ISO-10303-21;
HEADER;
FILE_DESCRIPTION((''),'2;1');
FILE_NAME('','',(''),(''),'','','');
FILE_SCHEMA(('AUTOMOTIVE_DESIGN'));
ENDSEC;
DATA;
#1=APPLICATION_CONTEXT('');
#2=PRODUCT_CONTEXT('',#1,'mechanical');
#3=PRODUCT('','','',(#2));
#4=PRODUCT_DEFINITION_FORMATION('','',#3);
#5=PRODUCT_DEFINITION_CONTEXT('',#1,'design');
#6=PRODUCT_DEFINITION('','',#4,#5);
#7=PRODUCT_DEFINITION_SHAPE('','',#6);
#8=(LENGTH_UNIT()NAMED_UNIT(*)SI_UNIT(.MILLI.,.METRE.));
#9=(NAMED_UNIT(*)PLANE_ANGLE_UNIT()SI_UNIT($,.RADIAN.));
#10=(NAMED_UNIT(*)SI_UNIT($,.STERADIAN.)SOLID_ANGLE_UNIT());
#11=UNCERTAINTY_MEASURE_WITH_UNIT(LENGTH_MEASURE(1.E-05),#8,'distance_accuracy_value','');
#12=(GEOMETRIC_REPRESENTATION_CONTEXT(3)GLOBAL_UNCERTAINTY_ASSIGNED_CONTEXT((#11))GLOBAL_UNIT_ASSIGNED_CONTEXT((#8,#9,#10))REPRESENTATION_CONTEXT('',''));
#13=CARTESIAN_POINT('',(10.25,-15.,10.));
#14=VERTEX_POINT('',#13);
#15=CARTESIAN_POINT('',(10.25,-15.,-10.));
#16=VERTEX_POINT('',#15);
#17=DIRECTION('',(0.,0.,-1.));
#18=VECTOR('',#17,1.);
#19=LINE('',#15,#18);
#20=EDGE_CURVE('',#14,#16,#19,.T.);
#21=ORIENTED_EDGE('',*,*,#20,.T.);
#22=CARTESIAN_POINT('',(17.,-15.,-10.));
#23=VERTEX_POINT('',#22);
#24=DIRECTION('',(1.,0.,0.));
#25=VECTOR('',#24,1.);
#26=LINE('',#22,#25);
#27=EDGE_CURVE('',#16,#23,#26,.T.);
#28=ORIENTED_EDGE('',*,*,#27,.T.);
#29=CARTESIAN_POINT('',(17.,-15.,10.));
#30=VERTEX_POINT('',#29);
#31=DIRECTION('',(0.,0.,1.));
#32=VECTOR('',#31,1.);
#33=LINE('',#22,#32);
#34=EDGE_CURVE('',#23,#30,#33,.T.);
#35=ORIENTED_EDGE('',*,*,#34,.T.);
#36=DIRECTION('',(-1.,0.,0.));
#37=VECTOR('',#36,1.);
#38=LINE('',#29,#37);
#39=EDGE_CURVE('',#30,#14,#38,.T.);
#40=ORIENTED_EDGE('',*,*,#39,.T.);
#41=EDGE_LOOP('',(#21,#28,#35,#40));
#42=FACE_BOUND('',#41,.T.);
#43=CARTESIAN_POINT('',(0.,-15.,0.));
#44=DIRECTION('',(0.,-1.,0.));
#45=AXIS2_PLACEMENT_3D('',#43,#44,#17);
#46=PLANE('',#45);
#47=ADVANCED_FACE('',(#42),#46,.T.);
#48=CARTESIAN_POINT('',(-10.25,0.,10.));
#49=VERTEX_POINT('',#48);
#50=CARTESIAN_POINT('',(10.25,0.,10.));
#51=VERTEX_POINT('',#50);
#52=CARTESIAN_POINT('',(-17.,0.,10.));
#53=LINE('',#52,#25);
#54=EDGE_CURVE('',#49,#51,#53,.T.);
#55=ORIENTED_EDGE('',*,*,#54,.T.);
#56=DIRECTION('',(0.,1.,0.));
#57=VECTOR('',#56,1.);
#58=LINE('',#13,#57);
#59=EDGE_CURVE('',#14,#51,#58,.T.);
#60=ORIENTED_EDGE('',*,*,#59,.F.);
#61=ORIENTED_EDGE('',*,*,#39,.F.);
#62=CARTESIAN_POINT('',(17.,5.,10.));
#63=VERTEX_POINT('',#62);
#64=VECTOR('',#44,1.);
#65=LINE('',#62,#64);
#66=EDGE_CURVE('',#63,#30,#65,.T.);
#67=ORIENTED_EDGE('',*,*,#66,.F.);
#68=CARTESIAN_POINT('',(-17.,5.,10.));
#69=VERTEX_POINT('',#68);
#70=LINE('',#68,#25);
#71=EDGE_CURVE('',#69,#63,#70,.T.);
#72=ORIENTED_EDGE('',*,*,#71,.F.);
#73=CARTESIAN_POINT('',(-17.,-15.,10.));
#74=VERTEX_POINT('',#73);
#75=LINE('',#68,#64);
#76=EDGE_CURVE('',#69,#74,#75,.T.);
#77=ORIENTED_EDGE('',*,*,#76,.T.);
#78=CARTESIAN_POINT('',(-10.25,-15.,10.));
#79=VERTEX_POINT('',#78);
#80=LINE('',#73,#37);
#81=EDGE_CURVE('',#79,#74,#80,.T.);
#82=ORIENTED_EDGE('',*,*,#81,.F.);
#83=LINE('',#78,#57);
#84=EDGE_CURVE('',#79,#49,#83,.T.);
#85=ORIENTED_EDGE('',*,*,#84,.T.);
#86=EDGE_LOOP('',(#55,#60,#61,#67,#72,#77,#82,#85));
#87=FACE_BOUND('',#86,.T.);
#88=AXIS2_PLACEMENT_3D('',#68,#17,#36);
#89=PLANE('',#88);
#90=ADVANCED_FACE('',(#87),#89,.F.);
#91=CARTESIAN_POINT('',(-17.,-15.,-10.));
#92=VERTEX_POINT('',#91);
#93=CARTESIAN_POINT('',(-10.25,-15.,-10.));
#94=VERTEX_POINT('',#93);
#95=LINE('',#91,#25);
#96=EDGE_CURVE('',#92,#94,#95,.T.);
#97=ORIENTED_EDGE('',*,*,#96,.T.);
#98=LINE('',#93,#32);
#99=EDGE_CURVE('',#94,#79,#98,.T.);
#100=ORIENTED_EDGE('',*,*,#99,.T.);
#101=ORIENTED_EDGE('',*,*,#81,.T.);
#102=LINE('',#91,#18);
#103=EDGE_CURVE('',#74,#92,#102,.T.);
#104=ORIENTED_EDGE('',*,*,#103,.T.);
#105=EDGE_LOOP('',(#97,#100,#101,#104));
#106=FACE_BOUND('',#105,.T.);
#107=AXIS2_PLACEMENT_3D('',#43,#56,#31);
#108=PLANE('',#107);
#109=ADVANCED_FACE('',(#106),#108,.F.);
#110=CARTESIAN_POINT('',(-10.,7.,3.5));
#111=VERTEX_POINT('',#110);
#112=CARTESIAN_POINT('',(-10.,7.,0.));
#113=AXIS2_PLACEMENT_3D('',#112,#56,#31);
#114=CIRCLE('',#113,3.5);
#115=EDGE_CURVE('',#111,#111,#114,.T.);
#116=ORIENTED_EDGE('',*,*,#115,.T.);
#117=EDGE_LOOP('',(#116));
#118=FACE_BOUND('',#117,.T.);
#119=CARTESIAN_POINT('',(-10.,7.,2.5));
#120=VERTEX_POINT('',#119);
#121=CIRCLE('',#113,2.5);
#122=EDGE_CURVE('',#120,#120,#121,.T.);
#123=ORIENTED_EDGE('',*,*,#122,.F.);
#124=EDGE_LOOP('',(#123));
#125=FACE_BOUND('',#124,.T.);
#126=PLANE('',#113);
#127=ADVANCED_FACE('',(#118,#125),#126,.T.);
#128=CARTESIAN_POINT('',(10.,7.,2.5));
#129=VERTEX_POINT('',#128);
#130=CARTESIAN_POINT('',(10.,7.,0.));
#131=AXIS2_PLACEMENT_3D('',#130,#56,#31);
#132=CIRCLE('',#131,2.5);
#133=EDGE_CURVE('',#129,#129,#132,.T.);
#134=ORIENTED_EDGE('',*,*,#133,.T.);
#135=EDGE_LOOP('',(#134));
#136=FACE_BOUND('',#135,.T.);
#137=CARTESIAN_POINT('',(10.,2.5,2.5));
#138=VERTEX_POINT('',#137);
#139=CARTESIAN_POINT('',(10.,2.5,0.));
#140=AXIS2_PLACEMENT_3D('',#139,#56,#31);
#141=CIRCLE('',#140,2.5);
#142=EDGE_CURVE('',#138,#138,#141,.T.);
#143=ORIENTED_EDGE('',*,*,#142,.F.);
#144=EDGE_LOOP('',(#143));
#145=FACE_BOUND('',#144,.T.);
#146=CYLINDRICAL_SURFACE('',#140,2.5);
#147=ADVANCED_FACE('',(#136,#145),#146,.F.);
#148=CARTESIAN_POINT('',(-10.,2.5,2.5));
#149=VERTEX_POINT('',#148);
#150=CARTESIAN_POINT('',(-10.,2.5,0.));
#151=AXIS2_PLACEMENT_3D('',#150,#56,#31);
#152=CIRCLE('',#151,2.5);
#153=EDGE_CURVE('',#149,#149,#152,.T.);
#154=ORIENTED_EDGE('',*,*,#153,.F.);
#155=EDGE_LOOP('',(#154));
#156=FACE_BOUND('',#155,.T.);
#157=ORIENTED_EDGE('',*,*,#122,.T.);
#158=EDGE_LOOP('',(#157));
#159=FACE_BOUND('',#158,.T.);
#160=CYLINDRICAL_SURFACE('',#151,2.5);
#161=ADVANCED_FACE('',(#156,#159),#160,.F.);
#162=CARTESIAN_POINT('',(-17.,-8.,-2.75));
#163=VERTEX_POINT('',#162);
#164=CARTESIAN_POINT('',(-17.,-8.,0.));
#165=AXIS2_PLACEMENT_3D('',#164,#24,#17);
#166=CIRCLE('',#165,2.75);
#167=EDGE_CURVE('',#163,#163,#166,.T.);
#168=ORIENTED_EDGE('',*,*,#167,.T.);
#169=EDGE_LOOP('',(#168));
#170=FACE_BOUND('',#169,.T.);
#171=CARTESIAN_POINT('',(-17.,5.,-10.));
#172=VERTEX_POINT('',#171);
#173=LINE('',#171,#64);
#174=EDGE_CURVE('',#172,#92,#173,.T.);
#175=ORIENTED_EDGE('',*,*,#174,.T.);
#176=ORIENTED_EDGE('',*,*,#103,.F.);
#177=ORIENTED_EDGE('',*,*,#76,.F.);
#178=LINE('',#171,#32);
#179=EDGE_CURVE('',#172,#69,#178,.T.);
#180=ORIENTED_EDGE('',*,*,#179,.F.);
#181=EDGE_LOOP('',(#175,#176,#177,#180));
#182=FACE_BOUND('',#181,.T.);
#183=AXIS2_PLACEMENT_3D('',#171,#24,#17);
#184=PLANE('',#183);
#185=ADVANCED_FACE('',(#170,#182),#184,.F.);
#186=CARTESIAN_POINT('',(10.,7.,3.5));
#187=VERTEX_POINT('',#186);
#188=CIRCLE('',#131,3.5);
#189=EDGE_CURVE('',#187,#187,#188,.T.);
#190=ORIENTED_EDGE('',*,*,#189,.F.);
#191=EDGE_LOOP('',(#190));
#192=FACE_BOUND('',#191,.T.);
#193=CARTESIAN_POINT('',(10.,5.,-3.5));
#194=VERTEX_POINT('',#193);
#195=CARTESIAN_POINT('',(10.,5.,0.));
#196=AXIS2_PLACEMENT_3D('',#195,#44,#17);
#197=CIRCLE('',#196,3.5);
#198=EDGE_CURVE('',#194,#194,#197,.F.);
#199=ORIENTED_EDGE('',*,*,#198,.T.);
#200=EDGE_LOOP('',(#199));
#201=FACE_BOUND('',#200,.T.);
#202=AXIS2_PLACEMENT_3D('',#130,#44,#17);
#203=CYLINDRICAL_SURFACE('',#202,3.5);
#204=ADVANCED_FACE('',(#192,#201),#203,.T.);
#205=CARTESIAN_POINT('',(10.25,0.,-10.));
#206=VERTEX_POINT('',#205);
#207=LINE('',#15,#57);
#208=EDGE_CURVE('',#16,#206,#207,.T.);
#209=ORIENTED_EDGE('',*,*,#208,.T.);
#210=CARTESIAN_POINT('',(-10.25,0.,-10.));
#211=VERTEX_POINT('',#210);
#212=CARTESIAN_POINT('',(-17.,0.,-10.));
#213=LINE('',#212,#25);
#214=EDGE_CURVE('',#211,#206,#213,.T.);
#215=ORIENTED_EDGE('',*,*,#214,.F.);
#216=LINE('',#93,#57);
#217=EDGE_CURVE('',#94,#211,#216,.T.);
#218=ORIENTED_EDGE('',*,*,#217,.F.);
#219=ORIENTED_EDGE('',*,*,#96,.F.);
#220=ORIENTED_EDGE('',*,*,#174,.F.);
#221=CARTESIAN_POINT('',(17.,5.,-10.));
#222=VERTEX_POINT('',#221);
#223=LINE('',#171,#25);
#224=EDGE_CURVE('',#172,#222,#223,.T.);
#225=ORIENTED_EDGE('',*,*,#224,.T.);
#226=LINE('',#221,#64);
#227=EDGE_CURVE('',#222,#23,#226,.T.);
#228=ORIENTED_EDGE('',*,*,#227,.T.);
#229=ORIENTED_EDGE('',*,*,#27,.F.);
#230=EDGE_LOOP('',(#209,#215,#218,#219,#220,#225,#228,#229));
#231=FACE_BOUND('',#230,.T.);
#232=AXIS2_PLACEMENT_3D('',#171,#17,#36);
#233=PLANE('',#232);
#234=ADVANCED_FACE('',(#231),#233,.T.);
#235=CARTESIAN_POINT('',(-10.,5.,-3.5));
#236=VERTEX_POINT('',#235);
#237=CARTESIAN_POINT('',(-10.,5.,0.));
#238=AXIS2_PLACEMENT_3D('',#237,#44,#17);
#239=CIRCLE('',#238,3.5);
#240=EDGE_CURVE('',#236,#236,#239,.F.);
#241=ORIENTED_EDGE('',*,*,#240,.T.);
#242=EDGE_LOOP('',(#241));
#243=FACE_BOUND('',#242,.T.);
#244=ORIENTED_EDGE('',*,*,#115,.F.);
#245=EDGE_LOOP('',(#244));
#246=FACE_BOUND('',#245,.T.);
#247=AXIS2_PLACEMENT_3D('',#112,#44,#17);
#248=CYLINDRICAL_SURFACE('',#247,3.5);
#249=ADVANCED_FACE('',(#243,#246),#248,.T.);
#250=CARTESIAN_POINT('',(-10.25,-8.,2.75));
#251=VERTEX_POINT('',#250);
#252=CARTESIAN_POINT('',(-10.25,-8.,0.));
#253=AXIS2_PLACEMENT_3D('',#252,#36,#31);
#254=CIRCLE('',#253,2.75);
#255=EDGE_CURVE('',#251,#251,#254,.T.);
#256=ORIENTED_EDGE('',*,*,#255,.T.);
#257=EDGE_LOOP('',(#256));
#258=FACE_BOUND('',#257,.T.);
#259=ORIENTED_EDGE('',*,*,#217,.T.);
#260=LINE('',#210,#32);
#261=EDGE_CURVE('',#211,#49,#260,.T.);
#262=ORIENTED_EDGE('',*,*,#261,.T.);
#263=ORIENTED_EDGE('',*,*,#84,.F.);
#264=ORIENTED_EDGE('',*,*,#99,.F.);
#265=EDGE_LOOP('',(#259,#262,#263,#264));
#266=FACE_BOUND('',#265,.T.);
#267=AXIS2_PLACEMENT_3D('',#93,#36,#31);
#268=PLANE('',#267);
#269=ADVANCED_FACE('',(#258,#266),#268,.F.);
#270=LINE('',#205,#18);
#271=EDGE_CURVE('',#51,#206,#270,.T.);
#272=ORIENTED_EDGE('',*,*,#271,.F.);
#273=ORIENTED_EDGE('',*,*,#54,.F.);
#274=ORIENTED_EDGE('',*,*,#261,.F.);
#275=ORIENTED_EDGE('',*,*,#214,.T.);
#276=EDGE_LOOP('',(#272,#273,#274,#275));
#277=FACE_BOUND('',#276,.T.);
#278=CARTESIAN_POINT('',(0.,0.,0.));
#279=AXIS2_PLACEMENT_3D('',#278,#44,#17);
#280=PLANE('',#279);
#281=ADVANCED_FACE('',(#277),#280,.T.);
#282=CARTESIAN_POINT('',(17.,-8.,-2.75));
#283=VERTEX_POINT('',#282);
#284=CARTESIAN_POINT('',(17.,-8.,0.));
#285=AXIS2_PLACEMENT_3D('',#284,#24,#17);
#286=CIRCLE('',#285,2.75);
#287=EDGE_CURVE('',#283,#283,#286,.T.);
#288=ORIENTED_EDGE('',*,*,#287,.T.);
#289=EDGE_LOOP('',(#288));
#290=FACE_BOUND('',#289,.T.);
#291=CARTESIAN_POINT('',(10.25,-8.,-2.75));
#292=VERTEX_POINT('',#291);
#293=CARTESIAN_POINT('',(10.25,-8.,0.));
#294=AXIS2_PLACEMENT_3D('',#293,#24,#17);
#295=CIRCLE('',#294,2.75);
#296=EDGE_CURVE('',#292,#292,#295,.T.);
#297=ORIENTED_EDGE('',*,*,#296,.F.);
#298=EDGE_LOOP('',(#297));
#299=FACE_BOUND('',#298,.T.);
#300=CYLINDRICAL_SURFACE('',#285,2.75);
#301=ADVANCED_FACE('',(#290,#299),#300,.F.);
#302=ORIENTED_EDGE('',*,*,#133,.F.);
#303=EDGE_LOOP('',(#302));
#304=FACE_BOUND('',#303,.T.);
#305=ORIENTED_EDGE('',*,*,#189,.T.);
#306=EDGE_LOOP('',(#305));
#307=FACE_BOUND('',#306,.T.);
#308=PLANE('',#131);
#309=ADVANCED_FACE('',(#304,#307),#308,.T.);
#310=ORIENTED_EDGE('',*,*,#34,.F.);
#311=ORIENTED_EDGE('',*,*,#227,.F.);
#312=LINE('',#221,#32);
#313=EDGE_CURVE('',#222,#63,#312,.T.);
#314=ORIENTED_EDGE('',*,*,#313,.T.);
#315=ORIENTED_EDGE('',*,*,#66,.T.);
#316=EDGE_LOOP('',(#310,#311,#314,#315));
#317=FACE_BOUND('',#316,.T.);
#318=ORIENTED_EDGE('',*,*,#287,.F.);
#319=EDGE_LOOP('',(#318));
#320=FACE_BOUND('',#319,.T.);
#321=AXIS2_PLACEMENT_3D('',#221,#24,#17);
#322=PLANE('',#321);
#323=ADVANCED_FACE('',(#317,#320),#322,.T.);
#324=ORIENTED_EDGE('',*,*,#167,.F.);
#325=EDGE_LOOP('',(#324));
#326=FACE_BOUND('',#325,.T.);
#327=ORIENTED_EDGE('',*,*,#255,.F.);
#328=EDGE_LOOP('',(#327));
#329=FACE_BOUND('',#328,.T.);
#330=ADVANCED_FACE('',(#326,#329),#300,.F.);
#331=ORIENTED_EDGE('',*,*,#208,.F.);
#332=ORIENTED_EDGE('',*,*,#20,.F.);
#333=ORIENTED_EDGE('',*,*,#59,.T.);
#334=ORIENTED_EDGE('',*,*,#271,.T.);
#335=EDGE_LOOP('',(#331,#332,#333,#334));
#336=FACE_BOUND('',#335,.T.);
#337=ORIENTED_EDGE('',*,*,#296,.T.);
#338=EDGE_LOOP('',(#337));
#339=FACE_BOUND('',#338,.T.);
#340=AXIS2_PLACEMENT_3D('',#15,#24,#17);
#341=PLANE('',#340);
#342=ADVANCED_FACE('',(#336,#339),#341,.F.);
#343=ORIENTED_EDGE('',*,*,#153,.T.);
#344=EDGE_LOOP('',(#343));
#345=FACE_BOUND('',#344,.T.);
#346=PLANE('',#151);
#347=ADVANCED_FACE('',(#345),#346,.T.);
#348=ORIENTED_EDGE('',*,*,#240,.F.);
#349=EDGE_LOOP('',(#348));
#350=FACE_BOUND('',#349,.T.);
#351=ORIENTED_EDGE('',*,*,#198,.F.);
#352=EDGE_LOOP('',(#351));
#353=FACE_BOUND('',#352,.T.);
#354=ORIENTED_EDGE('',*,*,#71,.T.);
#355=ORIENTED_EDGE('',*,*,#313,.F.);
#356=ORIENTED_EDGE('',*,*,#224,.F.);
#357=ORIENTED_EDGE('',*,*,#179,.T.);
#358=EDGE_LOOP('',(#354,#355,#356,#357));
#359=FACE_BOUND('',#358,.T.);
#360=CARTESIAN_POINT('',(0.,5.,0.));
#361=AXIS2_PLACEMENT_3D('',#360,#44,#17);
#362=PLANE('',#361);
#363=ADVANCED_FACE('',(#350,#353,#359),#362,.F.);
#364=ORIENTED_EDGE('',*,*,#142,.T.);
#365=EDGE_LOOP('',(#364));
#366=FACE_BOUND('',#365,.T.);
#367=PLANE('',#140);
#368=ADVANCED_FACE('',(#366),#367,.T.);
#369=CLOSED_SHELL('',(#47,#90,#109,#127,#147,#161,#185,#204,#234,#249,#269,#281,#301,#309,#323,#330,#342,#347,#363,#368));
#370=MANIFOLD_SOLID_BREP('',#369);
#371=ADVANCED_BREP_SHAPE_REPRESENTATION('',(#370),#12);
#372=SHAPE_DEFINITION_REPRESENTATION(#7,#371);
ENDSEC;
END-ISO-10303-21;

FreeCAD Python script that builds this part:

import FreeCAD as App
import Part
import Sketcher

V = App.Vector
Q = App.Units.Quantity

doc = App.newDocument("Part")
body = doc.addObject("PartDesign::Body", "Body")

# Sketch on XZ plane
sketch1 = body.newObject("Sketcher::SketchObject", "Sketch")
sketch1.AttachmentSupport = (doc.getObject("XZ_Plane"), [""])
sketch1.MapMode = "FlatFace"
sketch1.addGeometry([
    Part.LineSegment(V(-17, -10, 0), V(-17, 10, 0)),
    Part.LineSegment(V(-17, 10, 0), V(17, 10, 0)),
    Part.LineSegment(V(17, 10, 0), V(17, -10, 0)),
    Part.LineSegment(V(17, -10, 0), V(-17, -10, 0)),
], False)
sketch1.addConstraint([
    Sketcher.Constraint("Coincident", 0, 2, 1, 1),
    Sketcher.Constraint("Coincident", 1, 2, 2, 1),
    Sketcher.Constraint("Coincident", 2, 2, 3, 1),
    Sketcher.Constraint("Coincident", 3, 2, 0, 1),
    Sketcher.Constraint("Vertical", 0),
    Sketcher.Constraint("Horizontal", 1),
    Sketcher.Constraint("Vertical", 2),
    Sketcher.Constraint("Horizontal", 3),
    Sketcher.Constraint("Symmetric", 0, 2, 2, 2, -1, 1),
    Sketcher.Constraint("DistanceX", 1, 1, 1, 2, Q("34 mm")),
    Sketcher.Constraint("DistanceY", 0, 1, 0, 2, Q("20 mm")),
])
pad1 = body.newObject("PartDesign::Pad", "Pad")
pad1.Profile = sketch1
pad1.Length = 5
pad1.Reversed = True

# Sketch on XZ plane
sketch2 = body.newObject("Sketcher::SketchObject", "Sketch001")
sketch2.AttachmentSupport = (doc.getObject("XZ_Plane"), [""])
sketch2.MapMode = "FlatFace"
sketch2.AttachmentOffset = App.Placement(V(0, 0, -5), App.Rotation())
sketch2.addGeometry([
    Part.Circle(V(-10, 0, 0), V(0, 0, 1), 3.5),
    Part.Circle(V(10, 0, 0), V(0, 0, 1), 3.5),
], False)
sketch2.addConstraint([
    Sketcher.Constraint("Equal", 0, 1),
    Sketcher.Constraint("Symmetric", 0, 3, 1, 3, -1, 1),
    Sketcher.Constraint("PointOnObject", 0, 3, -1),
    Sketcher.Constraint("Diameter", 0, Q("7 mm")),
    Sketcher.Constraint("DistanceX", 0, 3, -1, 1, Q("10 mm")),
])
pad2 = body.newObject("PartDesign::Pad", "Pad001")
pad2.Profile = sketch2
pad2.Length = 2
pad2.Reversed = True

# Sketch on XZ plane
sketch3 = body.newObject("Sketcher::SketchObject", "Sketch002")
sketch3.AttachmentSupport = (doc.getObject("XZ_Plane"), [""])
sketch3.MapMode = "FlatFace"
sketch3.AttachmentOffset = App.Placement(V(0, 0, -7), App.Rotation())
sketch3.addGeometry([
    Part.Circle(V(-10, 0, 0), V(0, 0, 1), 2.5),
    Part.Circle(V(10, 0, 0), V(0, 0, 1), 2.5),
], False)
sketch3.addConstraint([
    Sketcher.Constraint("Equal", 0, 1),
    Sketcher.Constraint("Symmetric", 0, 3, 1, 3, -1, 1),
    Sketcher.Constraint("PointOnObject", 0, 3, -1),
    Sketcher.Constraint("Diameter", 0, Q("5 mm")),
    Sketcher.Constraint("DistanceX", 0, 3, -1, 1, Q("10 mm")),
])
pocket1 = body.newObject("PartDesign::Pocket", "Pocket")
pocket1.Profile = sketch3
pocket1.Length = 4.5
pocket1.Reversed = True

# Sketch on XZ plane
sketch4 = body.newObject("Sketcher::SketchObject", "Sketch003")
sketch4.AttachmentSupport = (doc.getObject("XZ_Plane"), [""])
sketch4.MapMode = "FlatFace"
sketch4.addGeometry([
    Part.LineSegment(V(10, 10, 0), V(10, -10, 0)),  # 0
    Part.LineSegment(V(10, -10, 0), V(17, -10, 0)),  # 1
    Part.LineSegment(V(17, -10, 0), V(17, 10, 0)),  # 2
    Part.LineSegment(V(17, 10, 0), V(10, 10, 0)),  # 3
    Part.LineSegment(V(-17, 10, 0), V(-17, -10, 0)),  # 4
    Part.LineSegment(V(-17, -10, 0), V(-10, -10, 0)),  # 5
    Part.LineSegment(V(-10, -10, 0), V(-10, 10, 0)),  # 6
    Part.LineSegment(V(-10, 10, 0), V(-17, 10, 0)),  # 7
], False)
sketch4.addConstraint([
    Sketcher.Constraint("Coincident", 0, 2, 1, 1),
    Sketcher.Constraint("Coincident", 1, 2, 2, 1),
    Sketcher.Constraint("Coincident", 2, 2, 3, 1),
    Sketcher.Constraint("Coincident", 3, 2, 0, 1),
    Sketcher.Constraint("Coincident", 4, 2, 5, 1),
    Sketcher.Constraint("Coincident", 5, 2, 6, 1),
    Sketcher.Constraint("Coincident", 6, 2, 7, 1),
    Sketcher.Constraint("Coincident", 7, 2, 4, 1),
    Sketcher.Constraint("Vertical", 0),
    Sketcher.Constraint("Horizontal", 1),
    Sketcher.Constraint("Vertical", 2),
    Sketcher.Constraint("Horizontal", 3),
    Sketcher.Constraint("Vertical", 4),
    Sketcher.Constraint("Horizontal", 5),
    Sketcher.Constraint("Vertical", 6),
    Sketcher.Constraint("Horizontal", 7),
    Sketcher.Constraint("Symmetric", 2, 2, 4, 2, -1, 1),
    Sketcher.Constraint("Symmetric", 0, 2, 6, 2, -1, 1),
    Sketcher.Constraint("Horizontal", 1, 2, 4, 2),
    Sketcher.Constraint("DistanceY", 0, 2, 0, 1, Q("20 mm")),
    Sketcher.Constraint("DistanceX", -1, 1, 1, 2, Q("17 mm")),
    Sketcher.Constraint("DistanceX", 1, 1, 1, 2, Q("6.75 mm")),
])
pad3 = body.newObject("PartDesign::Pad", "Pad002")
pad3.Profile = sketch4
pad3.Length = 15

# Sketch on YZ plane
sketch5 = body.newObject("Sketcher::SketchObject", "Sketch004")
sketch5.AttachmentSupport = (doc.getObject("YZ_Plane"), [""])
sketch5.MapMode = "FlatFace"
sketch5.AttachmentOffset = App.Placement(V(0, 0, 17), App.Rotation())
sketch5.addGeometry(Part.Circle(V(-8, 0, 0), V(0, 0, 1), 2.8), False)
sketch5.addConstraint([
    Sketcher.Constraint("PointOnObject", 0, 3, -1),
    Sketcher.Constraint("Diameter", 0, Q("5.5 mm")),
    Sketcher.Constraint("DistanceX", 0, 3, -1, 1, Q("8 mm")),
])
doc.recompute()
hole = body.newObject("PartDesign::Hole", "Hole")
hole.Profile = sketch5
hole.ThreadType = "None"
hole.Diameter = 5.5
hole.DepthType = "ThroughAll"

doc.recompute()
